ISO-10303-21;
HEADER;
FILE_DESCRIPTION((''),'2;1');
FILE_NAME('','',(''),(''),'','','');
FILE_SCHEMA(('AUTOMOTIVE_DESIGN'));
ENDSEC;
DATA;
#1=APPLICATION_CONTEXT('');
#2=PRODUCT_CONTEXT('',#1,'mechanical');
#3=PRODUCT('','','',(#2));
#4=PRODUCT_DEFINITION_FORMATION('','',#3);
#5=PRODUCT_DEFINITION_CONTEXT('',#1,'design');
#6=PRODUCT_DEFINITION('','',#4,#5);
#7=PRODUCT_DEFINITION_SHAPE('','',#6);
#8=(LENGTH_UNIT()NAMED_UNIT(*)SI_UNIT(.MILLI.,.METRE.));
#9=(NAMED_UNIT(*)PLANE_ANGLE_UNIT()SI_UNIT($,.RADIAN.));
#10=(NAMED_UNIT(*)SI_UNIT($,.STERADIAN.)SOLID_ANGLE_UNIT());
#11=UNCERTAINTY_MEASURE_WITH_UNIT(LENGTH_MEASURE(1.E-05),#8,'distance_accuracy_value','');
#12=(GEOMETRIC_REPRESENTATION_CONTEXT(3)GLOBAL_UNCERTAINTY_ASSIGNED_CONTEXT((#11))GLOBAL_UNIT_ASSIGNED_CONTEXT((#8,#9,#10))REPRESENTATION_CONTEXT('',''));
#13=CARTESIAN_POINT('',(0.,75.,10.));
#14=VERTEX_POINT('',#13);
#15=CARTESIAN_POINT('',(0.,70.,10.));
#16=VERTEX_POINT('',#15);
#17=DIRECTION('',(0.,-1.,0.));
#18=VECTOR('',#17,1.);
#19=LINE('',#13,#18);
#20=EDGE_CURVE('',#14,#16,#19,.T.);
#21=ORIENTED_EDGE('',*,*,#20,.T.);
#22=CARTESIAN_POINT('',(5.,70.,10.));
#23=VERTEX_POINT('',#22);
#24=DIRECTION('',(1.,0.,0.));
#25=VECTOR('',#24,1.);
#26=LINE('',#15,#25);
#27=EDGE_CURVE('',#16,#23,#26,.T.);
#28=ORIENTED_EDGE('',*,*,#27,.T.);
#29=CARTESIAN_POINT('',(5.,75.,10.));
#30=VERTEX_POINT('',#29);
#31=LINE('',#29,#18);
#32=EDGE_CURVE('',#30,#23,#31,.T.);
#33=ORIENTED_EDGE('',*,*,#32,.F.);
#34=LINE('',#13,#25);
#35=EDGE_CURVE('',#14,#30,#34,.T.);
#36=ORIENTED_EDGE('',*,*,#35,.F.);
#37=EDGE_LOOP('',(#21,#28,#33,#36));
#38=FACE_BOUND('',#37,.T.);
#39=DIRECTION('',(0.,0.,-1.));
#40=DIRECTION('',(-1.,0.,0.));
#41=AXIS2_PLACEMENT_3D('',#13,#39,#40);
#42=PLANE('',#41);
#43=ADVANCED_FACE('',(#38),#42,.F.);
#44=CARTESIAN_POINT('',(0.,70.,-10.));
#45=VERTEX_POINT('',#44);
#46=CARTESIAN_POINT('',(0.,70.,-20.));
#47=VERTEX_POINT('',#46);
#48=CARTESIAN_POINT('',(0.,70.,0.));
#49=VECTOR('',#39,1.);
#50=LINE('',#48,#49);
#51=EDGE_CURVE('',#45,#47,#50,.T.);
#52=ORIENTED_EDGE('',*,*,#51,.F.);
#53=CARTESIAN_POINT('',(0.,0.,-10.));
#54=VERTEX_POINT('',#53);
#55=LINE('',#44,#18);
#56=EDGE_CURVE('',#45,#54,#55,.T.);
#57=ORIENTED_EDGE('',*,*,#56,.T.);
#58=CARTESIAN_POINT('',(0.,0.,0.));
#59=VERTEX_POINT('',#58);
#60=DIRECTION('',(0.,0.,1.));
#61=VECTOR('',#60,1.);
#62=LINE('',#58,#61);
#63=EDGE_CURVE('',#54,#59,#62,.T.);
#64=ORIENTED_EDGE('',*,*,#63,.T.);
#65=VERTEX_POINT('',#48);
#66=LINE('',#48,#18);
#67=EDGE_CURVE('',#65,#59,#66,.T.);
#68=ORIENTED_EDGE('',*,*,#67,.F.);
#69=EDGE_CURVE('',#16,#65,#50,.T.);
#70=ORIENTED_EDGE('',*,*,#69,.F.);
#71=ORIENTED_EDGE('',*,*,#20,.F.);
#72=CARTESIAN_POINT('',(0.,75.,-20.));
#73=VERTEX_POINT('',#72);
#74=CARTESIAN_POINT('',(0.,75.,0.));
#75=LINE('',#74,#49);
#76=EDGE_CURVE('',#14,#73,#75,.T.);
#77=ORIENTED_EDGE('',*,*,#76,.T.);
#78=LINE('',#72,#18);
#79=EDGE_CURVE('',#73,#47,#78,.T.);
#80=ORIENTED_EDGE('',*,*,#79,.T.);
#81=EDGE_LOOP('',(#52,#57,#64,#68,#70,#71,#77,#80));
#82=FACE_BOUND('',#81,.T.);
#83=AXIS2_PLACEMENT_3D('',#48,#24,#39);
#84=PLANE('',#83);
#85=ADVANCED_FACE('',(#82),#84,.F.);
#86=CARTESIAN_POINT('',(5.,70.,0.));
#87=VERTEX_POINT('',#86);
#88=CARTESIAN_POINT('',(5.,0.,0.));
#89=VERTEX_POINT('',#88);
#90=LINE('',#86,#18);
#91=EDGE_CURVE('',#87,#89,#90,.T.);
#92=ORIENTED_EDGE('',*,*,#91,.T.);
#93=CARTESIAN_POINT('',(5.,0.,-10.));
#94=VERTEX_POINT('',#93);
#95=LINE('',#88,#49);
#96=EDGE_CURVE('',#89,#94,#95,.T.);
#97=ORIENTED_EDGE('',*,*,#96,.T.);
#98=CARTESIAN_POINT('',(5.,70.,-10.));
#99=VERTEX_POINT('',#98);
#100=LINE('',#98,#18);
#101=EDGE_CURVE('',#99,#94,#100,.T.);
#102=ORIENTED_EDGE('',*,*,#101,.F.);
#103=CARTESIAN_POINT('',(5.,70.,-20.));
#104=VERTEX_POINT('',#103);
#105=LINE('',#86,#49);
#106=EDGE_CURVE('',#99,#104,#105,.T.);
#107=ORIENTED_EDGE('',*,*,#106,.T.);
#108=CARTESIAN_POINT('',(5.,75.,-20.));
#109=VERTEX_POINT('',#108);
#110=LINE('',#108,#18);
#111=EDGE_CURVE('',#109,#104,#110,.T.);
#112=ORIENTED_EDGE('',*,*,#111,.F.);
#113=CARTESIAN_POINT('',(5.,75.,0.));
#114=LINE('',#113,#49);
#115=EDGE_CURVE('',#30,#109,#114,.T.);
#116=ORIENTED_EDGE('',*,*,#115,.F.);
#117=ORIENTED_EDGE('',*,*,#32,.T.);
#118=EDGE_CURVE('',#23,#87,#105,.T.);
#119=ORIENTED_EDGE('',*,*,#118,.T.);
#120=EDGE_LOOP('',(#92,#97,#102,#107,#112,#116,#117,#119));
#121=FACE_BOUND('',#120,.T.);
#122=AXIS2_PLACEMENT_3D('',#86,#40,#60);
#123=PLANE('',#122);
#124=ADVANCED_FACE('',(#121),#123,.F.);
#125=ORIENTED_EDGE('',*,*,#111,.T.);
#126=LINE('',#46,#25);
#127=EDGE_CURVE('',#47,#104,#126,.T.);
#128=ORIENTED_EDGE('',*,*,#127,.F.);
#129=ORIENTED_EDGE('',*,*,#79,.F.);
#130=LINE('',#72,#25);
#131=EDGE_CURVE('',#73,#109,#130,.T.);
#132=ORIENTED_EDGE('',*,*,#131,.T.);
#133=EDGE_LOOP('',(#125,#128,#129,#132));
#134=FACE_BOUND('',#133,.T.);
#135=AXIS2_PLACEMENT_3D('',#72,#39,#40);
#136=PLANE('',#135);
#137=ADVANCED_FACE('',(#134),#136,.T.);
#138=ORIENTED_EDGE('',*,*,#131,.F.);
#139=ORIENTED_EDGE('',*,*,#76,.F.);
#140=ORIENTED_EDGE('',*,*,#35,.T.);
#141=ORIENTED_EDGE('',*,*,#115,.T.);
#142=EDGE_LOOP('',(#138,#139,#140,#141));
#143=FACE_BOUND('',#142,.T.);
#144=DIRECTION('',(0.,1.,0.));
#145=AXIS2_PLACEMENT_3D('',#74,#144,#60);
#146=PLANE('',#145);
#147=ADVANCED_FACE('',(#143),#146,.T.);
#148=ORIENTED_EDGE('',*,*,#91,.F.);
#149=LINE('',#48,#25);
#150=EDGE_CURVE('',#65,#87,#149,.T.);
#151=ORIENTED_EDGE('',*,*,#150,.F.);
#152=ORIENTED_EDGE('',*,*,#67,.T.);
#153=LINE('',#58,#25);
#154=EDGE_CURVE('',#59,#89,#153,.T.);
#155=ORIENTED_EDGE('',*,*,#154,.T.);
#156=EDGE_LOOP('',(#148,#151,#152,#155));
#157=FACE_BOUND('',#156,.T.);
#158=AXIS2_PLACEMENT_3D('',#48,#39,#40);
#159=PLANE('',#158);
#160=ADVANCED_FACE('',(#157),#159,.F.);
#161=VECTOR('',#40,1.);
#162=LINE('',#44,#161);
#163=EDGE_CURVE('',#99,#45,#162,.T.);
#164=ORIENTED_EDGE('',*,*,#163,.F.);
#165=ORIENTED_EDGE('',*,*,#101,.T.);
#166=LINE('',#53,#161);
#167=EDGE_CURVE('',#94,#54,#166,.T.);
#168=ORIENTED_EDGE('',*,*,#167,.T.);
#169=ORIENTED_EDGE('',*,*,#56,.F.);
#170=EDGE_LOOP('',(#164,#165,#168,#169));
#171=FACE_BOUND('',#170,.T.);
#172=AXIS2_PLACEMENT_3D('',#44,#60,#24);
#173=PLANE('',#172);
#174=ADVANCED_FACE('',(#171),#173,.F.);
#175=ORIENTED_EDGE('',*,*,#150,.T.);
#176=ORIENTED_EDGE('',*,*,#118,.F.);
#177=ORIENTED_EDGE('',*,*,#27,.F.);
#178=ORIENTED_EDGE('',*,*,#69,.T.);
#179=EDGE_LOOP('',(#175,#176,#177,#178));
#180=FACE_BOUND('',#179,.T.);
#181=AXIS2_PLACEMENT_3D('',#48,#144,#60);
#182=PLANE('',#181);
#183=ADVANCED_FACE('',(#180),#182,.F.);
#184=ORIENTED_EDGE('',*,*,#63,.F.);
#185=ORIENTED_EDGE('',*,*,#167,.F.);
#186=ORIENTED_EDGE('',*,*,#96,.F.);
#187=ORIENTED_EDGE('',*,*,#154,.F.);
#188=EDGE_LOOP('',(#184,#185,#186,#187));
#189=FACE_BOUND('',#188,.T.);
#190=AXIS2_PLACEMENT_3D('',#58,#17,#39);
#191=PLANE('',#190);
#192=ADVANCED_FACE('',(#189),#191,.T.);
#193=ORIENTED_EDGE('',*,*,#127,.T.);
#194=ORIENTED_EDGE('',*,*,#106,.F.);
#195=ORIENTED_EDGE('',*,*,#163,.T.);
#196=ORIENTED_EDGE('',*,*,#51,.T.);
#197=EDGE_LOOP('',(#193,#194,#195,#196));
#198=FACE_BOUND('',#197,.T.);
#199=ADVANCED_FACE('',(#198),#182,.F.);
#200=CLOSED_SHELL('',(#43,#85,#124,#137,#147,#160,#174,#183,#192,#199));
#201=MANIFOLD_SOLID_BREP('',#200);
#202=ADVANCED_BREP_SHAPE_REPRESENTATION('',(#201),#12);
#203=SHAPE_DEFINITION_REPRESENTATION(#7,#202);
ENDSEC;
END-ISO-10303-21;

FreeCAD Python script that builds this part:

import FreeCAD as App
import Part
import Sketcher

V = App.Vector
Q = App.Units.Quantity

doc = App.newDocument("Part")
params = doc.addObject("Spreadsheet::Sheet", "Params")
for row, (alias, value) in enumerate([
    ("sketch1_width", "5 mm"),
    ("sketch1_height", "10 mm"),
    ("pad1_length", "70 mm"),
    ("sketch2_width", "5 mm"),
    ("sketch2_height", "30 mm"),
    ("pad2_length", "5 mm"),
], start=1):
    params.set(f"A{row}", alias)
    params.set(f"B{row}", "=" + value)
    params.setAlias(f"B{row}", alias)

body = doc.addObject("PartDesign::Body", "Body")

# Sketch on XZ plane
sketch1 = doc.addObject("Sketcher::SketchObject", "Sketch")
body.addObject(sketch1)
sketch1.AttachmentSupport = (doc.XZ_Plane, [""])
sketch1.MapMode = "FlatFace"
sketch1.addGeometry(Part.LineSegment(V(0, -10, 0), V(0, 0, 0)), False)
sketch1.addGeometry(Part.LineSegment(V(0, 0, 0), V(5, 0, 0)), False)
sketch1.addGeometry(Part.LineSegment(V(5, 0, 0), V(5, -10, 0)), False)
sketch1.addGeometry(Part.LineSegment(V(5, -10, 0), V(0, -10, 0)), False)
sketch1.addConstraint(Sketcher.Constraint("Coincident", 0, 2, 1, 1))
sketch1.addConstraint(Sketcher.Constraint("Coincident", 1, 2, 2, 1))
sketch1.addConstraint(Sketcher.Constraint("Coincident", 2, 2, 3, 1))
sketch1.addConstraint(Sketcher.Constraint("Coincident", 3, 2, 0, 1))
sketch1.addConstraint(Sketcher.Constraint("Vertical", 0))
sketch1.addConstraint(Sketcher.Constraint("Horizontal", 1))
sketch1.addConstraint(Sketcher.Constraint("Vertical", 2))
sketch1.addConstraint(Sketcher.Constraint("Horizontal", 3))
sketch1.addConstraint(Sketcher.Constraint("Coincident", 0, 2, -1, 1))
sketch1.addConstraint(Sketcher.Constraint("DistanceX", 1, 1, 1, 2, Q("5 mm")))
sketch1.addConstraint(Sketcher.Constraint("DistanceY", 0, 1, 0, 2, Q("10 mm")))
sketch1.setExpression("Constraints[9]", "Params.sketch1_width")
sketch1.setExpression("Constraints[10]", "Params.sketch1_height")
pad1 = doc.addObject("PartDesign::Pad", "Pad")
body.addObject(pad1)
pad1.Profile = sketch1
pad1.setExpression("Length", "Params.pad1_length")
pad1.Reversed = True

# Sketch on XZ plane
sketch2 = doc.addObject("Sketcher::SketchObject", "Sketch001")
body.addObject(sketch2)
sketch2.AttachmentSupport = (doc.XZ_Plane, [""])
sketch2.MapMode = "FlatFace"
sketch2.AttachmentOffset = App.Placement(V(0, 0, -70), App.Rotation())
sketch2.addGeometry(Part.LineSegment(V(0, -20, 0), V(0, 10, 0)), False)
sketch2.addGeometry(Part.LineSegment(V(0, 10, 0), V(5, 10, 0)), False)
sketch2.addGeometry(Part.LineSegment(V(5, 10, 0), V(5, -20, 0)), False)
sketch2.addGeometry(Part.LineSegment(V(5, -20, 0), V(0, -20, 0)), False)
sketch2.addConstraint(Sketcher.Constraint("Coincident", 0, 2, 1, 1))
sketch2.addConstraint(Sketcher.Constraint("Coincident", 1, 2, 2, 1))
sketch2.addConstraint(Sketcher.Constraint("Coincident", 2, 2, 3, 1))
sketch2.addConstraint(Sketcher.Constraint("Coincident", 3, 2, 0, 1))
sketch2.addConstraint(Sketcher.Constraint("Vertical", 0))
sketch2.addConstraint(Sketcher.Constraint("Horizontal", 1))
sketch2.addConstraint(Sketcher.Constraint("Vertical", 2))
sketch2.addConstraint(Sketcher.Constraint("Horizontal", 3))
sketch2.addConstraint(Sketcher.Constraint("PointOnObject", 0, 2, -2))
sketch2.addConstraint(Sketcher.Constraint("DistanceX", 1, 1, 1, 2, Q("5 mm")))
sketch2.addConstraint(Sketcher.Constraint("DistanceY", 0, 1, 0, 2, Q("30 mm")))
sketch2.addConstraint(Sketcher.Constraint("DistanceY", -1, 1, 0, 2, Q("10 mm")))
sketch2.setExpression("Constraints[9]", "Params.sketch2_width")
sketch2.setExpression("Constraints[10]", "Params.sketch2_height")
pad2 = doc.addObject("PartDesign::Pad", "Pad001")
body.addObject(pad2)
pad2.Profile = sketch2
pad2.setExpression("Length", "Params.pad2_length")
pad2.Reversed = True

doc.recompute()
